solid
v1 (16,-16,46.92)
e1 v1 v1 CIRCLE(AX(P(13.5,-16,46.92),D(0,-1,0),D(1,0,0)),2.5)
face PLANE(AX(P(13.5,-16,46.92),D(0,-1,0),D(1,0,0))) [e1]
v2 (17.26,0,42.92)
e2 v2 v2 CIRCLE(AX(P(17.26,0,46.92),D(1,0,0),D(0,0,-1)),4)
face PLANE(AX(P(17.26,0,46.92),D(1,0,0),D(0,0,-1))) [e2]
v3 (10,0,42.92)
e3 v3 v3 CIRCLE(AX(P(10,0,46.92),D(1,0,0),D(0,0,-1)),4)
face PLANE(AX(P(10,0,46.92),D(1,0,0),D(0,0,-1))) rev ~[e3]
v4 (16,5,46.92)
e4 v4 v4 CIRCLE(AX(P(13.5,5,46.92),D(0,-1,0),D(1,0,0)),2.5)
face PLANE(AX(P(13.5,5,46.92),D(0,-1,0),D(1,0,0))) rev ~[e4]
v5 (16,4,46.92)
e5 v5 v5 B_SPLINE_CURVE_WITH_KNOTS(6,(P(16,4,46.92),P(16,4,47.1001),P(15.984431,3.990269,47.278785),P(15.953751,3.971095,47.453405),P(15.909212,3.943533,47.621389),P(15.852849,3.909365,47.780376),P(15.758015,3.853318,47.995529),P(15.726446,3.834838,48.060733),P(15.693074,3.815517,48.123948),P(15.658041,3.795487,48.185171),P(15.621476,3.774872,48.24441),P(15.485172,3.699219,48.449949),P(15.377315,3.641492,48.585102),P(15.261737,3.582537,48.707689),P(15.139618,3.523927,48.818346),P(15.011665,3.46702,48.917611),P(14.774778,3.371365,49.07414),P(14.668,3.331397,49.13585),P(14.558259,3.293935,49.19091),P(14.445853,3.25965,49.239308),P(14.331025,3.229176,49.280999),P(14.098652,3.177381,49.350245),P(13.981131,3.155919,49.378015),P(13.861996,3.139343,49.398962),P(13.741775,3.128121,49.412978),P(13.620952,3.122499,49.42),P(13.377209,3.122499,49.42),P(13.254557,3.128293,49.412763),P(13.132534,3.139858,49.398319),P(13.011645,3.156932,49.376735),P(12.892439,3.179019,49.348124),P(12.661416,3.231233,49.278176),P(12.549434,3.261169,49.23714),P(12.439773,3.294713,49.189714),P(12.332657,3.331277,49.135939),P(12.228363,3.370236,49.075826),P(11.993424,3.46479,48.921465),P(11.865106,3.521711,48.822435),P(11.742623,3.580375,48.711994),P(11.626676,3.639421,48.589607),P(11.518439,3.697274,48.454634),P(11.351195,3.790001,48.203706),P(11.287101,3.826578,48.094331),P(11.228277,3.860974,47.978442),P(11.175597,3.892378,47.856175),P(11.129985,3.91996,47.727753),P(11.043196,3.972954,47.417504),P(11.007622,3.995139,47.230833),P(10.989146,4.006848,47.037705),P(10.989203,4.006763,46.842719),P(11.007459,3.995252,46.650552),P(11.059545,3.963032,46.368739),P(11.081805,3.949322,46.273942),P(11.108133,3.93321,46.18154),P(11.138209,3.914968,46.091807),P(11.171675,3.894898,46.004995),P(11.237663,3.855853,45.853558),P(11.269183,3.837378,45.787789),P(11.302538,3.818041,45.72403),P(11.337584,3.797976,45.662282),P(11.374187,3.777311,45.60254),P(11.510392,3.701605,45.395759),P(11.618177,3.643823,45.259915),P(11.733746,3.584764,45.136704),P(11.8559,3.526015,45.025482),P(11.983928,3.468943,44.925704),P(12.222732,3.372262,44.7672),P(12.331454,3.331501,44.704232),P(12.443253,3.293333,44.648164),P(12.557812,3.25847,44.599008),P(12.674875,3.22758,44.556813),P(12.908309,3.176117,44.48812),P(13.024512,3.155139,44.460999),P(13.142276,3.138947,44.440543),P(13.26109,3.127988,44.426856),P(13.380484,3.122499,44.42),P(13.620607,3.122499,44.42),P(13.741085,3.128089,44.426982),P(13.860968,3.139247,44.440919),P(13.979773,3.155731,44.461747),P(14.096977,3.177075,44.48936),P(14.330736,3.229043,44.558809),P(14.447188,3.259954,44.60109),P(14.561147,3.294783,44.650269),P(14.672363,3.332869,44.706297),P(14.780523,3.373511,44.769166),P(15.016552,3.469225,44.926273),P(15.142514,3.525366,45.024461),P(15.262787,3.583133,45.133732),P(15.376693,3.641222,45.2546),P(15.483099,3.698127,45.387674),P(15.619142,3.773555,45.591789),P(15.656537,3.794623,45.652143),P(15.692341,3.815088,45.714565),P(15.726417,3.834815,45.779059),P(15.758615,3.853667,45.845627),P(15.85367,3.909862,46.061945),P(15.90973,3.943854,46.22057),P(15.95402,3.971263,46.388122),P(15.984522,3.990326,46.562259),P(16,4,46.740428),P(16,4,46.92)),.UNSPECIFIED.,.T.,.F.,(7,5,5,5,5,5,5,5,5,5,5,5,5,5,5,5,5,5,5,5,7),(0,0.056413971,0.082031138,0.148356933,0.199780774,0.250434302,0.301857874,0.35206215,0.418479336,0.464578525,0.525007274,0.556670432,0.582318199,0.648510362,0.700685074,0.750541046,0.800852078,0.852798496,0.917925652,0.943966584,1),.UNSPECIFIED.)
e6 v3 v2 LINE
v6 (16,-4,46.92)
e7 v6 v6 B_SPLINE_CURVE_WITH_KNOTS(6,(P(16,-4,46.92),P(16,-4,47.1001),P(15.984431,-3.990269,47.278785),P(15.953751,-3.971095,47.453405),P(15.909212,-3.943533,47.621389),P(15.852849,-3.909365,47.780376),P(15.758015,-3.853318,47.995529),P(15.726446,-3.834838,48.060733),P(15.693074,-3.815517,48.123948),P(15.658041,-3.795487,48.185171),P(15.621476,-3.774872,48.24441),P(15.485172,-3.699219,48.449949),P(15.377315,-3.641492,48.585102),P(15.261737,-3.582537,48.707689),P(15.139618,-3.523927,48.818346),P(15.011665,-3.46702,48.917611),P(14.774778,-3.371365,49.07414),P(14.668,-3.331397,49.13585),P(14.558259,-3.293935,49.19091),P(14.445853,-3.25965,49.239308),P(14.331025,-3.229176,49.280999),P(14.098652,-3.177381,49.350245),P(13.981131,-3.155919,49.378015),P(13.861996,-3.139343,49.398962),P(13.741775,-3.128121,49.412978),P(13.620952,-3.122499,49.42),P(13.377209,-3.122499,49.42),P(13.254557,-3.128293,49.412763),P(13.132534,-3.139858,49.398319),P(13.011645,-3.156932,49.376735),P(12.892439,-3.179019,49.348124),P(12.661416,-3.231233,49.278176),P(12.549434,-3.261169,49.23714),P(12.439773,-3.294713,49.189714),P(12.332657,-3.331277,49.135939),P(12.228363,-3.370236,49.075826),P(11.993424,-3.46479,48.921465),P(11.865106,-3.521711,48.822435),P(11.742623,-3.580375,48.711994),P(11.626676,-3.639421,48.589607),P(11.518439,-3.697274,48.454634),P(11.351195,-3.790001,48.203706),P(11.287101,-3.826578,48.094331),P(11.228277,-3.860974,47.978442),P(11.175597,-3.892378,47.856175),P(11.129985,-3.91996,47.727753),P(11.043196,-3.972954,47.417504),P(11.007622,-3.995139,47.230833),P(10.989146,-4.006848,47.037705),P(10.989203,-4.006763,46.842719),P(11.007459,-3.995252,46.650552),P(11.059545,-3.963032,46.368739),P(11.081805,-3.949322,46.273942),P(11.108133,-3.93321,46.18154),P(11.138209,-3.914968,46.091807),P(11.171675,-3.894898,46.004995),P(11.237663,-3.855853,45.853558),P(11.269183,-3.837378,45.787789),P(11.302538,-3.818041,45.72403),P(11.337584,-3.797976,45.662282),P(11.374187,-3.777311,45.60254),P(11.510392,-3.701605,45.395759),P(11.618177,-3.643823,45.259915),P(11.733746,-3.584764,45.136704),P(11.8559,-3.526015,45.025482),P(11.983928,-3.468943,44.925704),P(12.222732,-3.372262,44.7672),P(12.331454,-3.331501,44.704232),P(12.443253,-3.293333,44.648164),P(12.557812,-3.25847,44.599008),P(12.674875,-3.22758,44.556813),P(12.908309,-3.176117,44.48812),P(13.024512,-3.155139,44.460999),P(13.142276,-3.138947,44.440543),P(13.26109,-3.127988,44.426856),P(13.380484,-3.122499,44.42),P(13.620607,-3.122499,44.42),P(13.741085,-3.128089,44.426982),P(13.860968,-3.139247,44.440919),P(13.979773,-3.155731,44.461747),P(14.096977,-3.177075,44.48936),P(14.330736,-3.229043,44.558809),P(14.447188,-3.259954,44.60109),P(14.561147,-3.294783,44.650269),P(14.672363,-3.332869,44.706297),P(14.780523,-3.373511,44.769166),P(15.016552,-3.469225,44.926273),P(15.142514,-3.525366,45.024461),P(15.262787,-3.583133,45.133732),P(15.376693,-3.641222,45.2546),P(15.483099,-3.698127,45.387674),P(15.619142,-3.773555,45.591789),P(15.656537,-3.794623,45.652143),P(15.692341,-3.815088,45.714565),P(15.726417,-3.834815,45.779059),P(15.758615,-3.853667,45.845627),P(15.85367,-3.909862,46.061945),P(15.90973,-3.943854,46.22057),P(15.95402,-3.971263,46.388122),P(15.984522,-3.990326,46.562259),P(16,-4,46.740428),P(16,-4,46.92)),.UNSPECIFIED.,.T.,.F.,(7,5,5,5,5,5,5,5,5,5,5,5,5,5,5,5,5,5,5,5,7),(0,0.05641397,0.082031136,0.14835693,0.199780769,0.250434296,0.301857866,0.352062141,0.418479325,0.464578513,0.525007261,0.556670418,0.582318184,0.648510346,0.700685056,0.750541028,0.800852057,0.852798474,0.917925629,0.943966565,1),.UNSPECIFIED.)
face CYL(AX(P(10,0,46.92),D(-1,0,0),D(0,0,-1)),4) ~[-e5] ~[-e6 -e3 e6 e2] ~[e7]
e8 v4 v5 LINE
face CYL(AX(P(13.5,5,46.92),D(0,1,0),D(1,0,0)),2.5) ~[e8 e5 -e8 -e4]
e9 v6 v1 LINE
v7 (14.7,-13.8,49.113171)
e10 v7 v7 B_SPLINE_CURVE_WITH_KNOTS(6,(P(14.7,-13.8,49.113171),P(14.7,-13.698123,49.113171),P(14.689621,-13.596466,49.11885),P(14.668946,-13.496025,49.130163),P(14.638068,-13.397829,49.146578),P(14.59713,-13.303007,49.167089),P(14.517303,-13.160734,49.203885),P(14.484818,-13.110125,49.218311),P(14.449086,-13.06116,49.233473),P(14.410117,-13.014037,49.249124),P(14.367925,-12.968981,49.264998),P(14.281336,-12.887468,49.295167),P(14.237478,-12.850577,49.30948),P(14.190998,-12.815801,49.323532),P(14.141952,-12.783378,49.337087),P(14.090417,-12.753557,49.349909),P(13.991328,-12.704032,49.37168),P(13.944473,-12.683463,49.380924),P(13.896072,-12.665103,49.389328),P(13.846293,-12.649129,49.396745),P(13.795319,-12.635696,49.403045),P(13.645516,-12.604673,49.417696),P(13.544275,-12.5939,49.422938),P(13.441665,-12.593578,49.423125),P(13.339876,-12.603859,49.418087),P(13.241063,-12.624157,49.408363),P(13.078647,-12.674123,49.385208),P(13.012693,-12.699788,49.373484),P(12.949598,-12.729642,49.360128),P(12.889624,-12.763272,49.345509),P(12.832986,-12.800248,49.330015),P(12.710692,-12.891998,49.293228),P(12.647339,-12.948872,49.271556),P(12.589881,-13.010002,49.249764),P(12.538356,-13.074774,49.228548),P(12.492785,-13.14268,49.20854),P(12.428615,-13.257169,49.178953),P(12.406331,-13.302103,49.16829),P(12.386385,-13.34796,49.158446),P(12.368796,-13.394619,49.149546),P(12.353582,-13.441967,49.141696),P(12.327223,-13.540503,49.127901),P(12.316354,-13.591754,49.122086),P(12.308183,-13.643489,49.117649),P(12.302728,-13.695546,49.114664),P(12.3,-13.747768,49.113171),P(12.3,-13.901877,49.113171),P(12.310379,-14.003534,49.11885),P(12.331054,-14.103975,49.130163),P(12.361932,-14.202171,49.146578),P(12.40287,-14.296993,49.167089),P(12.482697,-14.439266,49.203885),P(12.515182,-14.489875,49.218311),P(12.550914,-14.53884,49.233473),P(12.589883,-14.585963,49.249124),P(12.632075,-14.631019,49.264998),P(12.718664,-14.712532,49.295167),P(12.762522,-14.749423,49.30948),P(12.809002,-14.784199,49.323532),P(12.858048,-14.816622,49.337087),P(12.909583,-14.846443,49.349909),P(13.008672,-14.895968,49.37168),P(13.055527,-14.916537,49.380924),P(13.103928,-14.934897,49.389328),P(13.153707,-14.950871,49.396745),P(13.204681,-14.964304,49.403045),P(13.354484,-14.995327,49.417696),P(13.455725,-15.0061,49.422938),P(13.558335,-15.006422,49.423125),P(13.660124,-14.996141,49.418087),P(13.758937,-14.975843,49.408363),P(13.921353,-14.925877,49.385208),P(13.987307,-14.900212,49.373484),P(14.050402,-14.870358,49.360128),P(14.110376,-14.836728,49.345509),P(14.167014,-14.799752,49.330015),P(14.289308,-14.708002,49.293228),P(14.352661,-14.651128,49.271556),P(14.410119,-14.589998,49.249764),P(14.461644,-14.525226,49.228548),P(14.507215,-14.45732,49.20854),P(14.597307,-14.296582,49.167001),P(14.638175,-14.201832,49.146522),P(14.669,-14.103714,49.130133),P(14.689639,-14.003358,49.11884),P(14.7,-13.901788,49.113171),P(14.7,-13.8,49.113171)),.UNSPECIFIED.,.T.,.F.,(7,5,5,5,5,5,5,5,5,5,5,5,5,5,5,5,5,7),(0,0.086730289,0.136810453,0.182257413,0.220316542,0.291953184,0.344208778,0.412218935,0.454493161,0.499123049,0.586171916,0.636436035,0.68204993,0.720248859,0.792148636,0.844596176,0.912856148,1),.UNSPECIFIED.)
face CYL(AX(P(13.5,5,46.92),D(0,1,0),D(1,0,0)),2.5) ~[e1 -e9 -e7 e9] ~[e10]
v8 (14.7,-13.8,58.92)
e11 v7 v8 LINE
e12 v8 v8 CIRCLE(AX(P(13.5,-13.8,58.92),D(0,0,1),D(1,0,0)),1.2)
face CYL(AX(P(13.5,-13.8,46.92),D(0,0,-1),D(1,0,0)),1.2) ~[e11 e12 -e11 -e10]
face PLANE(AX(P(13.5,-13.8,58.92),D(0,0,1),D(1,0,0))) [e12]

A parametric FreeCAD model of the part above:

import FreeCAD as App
import Part
import Sketcher
from FreeCAD import Vector
Q = App.Units.Quantity

doc = App.newDocument("Part")
body = doc.addObject("PartDesign::Body", "Body")

# Sketch on XZ plane
sketch1 = body.newObject("Sketcher::SketchObject", "Sketch")
sketch1.AttachmentSupport = (doc.getObject("XZ_Plane"), [""])
sketch1.MapMode = "FlatFace"
sketch1.AttachmentOffset = App.Placement(Vector(0, 0, -5), App.Rotation())
sketch1.addGeometry(Part.Circle(Vector(3.5, 0, 0), Vector(0, 0, 1), 2.5), False)
sketch1.addConstraint([
    Sketcher.Constraint("PointOnObject", 0, 3, -1),
    Sketcher.Constraint("Diameter", 0, Q("5 mm")),
    Sketcher.Constraint("DistanceX", -1, 1, 0, 3, Q("3.5 mm")),
])
pad1 = body.newObject("PartDesign::Pad", "Pad")
pad1.Profile = sketch1
pad1.Length = 21
body2 = doc.addObject("PartDesign::Body", "Body001")

# Sketch on XY plane
sketch2 = body2.newObject("Sketcher::SketchObject", "Sketch001")
sketch2.AttachmentSupport = (doc.getObject("XY_Plane001"), [""])
sketch2.MapMode = "FlatFace"
sketch2.addGeometry(Part.Circle(Vector(3.5, -13.8, 0), Vector(0, 0, 1), 1.2), False)
sketch2.addConstraint([
    Sketcher.Constraint("Diameter", 0, Q("2.4 mm")),
    Sketcher.Constraint("DistanceX", -1, 1, 0, 3, Q("3.5 mm")),
    Sketcher.Constraint("DistanceY", 0, 3, -1, 1, Q("13.8 mm")),
])
pad2 = body2.newObject("PartDesign::Pad", "Pad001")
pad2.Profile = sketch2
pad2.Length = 12
body3 = doc.addObject("PartDesign::Body", "Body002")

# Sketch on YZ plane
sketch3 = body3.newObject("Sketcher::SketchObject", "Sketch002")
sketch3.AttachmentSupport = (doc.getObject("YZ_Plane002"), [""])
sketch3.MapMode = "FlatFace"
sketch3.addGeometry(Part.Circle(Vector(0, 0, 0), Vector(0, 0, 1), 4), False)
sketch3.addConstraint([
    Sketcher.Constraint("Coincident", 0, 3, -1, 1),
    Sketcher.Constraint("Diameter", 0, Q("8 mm")),
])
pad3 = body3.newObject("PartDesign::Pad", "Pad002")
pad3.Profile = sketch3
pad3.Length = 7.26
doc.recompute()

boolean = body3.newObject("PartDesign::Boolean", "Boolean")
boolean.Type = "Fuse"
boolean.addObjects([body])
doc.recompute()

boolean2 = body3.newObject("PartDesign::Boolean", "Boolean001")
boolean2.Type = "Fuse"
boolean2.addObjects([body2])
body4 = doc.addObject("PartDesign::Body", "Body003")
doc.recompute()

body3.Placement = App.Placement(Vector(10, 0, 46.92), App.Rotation(Vector(0, 0, 1), 0))
boolean3 = body4.newObject("PartDesign::Boolean", "Boolean002")
boolean3.Type = "Fuse"
boolean3.addObjects([body3])

doc.recompute()
